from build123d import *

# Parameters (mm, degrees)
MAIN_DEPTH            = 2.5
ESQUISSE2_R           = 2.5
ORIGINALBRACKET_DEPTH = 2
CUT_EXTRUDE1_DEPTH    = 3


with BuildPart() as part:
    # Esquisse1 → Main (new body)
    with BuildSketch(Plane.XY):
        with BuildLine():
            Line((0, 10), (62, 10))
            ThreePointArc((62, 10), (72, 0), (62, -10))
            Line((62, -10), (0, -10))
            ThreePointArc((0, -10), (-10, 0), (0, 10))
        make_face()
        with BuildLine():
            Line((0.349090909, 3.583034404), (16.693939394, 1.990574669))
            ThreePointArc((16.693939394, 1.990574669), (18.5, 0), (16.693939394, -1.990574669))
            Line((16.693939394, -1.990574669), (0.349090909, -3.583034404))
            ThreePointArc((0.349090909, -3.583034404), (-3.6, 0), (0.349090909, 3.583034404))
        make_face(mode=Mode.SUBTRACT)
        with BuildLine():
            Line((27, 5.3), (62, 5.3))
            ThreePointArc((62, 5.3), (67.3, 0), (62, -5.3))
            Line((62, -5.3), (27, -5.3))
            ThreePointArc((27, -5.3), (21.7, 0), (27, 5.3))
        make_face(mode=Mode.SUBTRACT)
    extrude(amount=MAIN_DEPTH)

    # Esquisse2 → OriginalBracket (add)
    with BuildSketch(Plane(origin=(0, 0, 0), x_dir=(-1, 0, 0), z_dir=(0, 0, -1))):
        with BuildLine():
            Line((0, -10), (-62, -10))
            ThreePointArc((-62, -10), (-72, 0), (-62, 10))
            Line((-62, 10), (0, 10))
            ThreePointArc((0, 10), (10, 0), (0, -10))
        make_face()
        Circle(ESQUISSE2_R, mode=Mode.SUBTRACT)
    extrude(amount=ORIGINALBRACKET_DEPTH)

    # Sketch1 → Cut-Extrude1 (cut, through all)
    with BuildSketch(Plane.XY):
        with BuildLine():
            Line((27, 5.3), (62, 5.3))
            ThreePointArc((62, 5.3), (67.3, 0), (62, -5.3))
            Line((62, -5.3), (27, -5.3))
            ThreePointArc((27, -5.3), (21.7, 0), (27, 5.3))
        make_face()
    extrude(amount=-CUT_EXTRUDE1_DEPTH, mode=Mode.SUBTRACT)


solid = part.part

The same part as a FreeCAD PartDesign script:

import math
import FreeCAD as App
import Part
import Sketcher

doc = App.newDocument("Part")
params = doc.addObject("Spreadsheet::Sheet", "Params")
for row, (alias, value) in enumerate([
    ("sketch1_radius", "10 mm"),
    ("sketch1_radius2", "2 mm"),
    ("sketch1_radius3", "5.3 mm"),
    ("sketch1_radius4", "3.6 mm"),
    ("sketch1_width", "62 mm"),
    ("pad1_length", "2.5 mm"),
    ("sketch2_diameter", "5 mm"),
    ("sketch2_radius", "10 mm"),
    ("sketch2_width", "62 mm"),
    ("pad2_length", "2 mm"),
    ("sketch3_radius", "5.3 mm"),
    ("sketch3_width", "35 mm"),
], start=1):
    params.set(f"A{row}", alias)
    params.set(f"B{row}", "=" + value)
    params.setAlias(f"B{row}", alias)

body = doc.addObject("PartDesign::Body", "Body")

# Sketch on XY plane
sketch1 = doc.addObject("Sketcher::SketchObject", "Sketch")
body.addObject(sketch1)
sketch1.AttachmentSupport = (doc.XY_Plane, [""])
sketch1.MapMode = "FlatFace"
sketch1.addGeometry(Part.LineSegment(App.Vector(62, 10, 0), App.Vector(0, 10, 0)), False)
sketch1.addGeometry(Part.ArcOfCircle(Part.Circle(App.Vector(0, 0, 0), App.Vector(0, 0, 1), 10), math.radians(90), math.radians(270)), False)
sketch1.addGeometry(Part.LineSegment(App.Vector(0, -10, 0), App.Vector(62, -10, 0)), False)
sketch1.addGeometry(Part.ArcOfCircle(Part.Circle(App.Vector(62, 0, 0), App.Vector(0, 0, 1), 10), math.radians(-90), math.radians(90)), False)
sketch1.addGeometry(Part.LineSegment(App.Vector(27, 5.3, 0), App.Vector(62, 5.3, 0)), False)
sketch1.addGeometry(Part.ArcOfCircle(Part.Circle(App.Vector(62, 0, 0), App.Vector(0, 0, 1), 5.3), math.radians(-90), math.radians(90)), False)
sketch1.addGeometry(Part.LineSegment(App.Vector(62, -5.3, 0), App.Vector(27, -5.3, 0)), False)
sketch1.addGeometry(Part.ArcOfCircle(Part.Circle(App.Vector(27, 0, 0), App.Vector(0, 0, 1), 5.3), math.radians(90), math.radians(270)), False)
sketch1.addGeometry(Part.LineSegment(App.Vector(0.3, 3.6, 0), App.Vector(16.7, 2, 0)), False)
sketch1.addGeometry(Part.ArcOfCircle(Part.Circle(App.Vector(16.5, 0, 0), App.Vector(0, 0, 1), 2), math.radians(-84), math.radians(84)), False)
sketch1.addGeometry(Part.LineSegment(App.Vector(16.7, -2, 0), App.Vector(0.3, -3.6, 0)), False)
sketch1.addGeometry(Part.ArcOfCircle(Part.Circle(App.Vector(0, 0, 0), App.Vector(0, 0, 1), 3.6), math.radians(84), math.radians(276)), False)
sketch1.addConstraint(Sketcher.Constraint("Tangent", 0, 2, 1, 1))
sketch1.addConstraint(Sketcher.Constraint("Tangent", 1, 2, 2, 1))
sketch1.addConstraint(Sketcher.Constraint("Tangent", 2, 2, 3, 1))
sketch1.addConstraint(Sketcher.Constraint("Tangent", 3, 2, 0, 1))
sketch1.addConstraint(Sketcher.Constraint("Tangent", 4, 2, 5, 2))
sketch1.addConstraint(Sketcher.Constraint("Tangent", 5, 1, 6, 1))
sketch1.addConstraint(Sketcher.Constraint("Tangent", 6, 2, 7, 2))
sketch1.addConstraint(Sketcher.Constraint("Tangent", 7, 1, 4, 1))
sketch1.addConstraint(Sketcher.Constraint("Tangent", 8, 2, 9, 2))
sketch1.addConstraint(Sketcher.Constraint("Tangent", 9, 1, 10, 1))
sketch1.addConstraint(Sketcher.Constraint("Tangent", 10, 2, 11, 2))
sketch1.addConstraint(Sketcher.Constraint("Tangent", 11, 1, 8, 1))
sketch1.addConstraint(Sketcher.Constraint("Horizontal", 0))
sketch1.addConstraint(Sketcher.Constraint("Horizontal", 2))
sketch1.addConstraint(Sketcher.Constraint("Horizontal", 4))
sketch1.addConstraint(Sketcher.Constraint("Horizontal", 6))
sketch1.addConstraint(Sketcher.Constraint("Coincident", 1, 3, -1, 1))
sketch1.addConstraint(Sketcher.Constraint("Coincident", 11, 3, -1, 1))
sketch1.addConstraint(Sketcher.Constraint("Coincident", 5, 3, 3, 3))
sketch1.addConstraint(Sketcher.Constraint("PointOnObject", 9, 3, -1))
sketch1.addConstraint(Sketcher.Constraint("Radius", 1, 10.0))
sketch1.addConstraint(Sketcher.Constraint("Radius", 9, 2.0))
sketch1.addConstraint(Sketcher.Constraint("Radius", 5, 5.3))
sketch1.addConstraint(Sketcher.Constraint("Radius", 11, 3.6))
sketch1.addConstraint(Sketcher.Constraint("DistanceX", 0, 2, 0, 1, 62.0))
sketch1.addConstraint(Sketcher.Constraint("DistanceX", 4, 1, 4, 2, 35.0))
sketch1.addConstraint(Sketcher.Constraint("DistanceX", -1, 1, 9, 3, 16.5))
sketch1.setExpression("Constraints[20]", "Params.sketch1_radius")
sketch1.setExpression("Constraints[21]", "Params.sketch1_radius2")
sketch1.setExpression("Constraints[22]", "Params.sketch1_radius3")
sketch1.setExpression("Constraints[23]", "Params.sketch1_radius4")
sketch1.setExpression("Constraints[24]", "Params.sketch1_width")
pad1 = doc.addObject("PartDesign::Pad", "Pad")
body.addObject(pad1)
pad1.Profile = sketch1
pad1.setExpression("Length", "Params.pad1_length")

# Sketch on XY plane
sketch2 = doc.addObject("Sketcher::SketchObject", "Sketch001")
body.addObject(sketch2)
sketch2.AttachmentSupport = (doc.XY_Plane, [""])
sketch2.MapMode = "FlatFace"
sketch2.addGeometry(Part.LineSegment(App.Vector(62, -10, 0), App.Vector(0, -10, 0)), False)
sketch2.addGeometry(Part.ArcOfCircle(Part.Circle(App.Vector(0, 0, 0), App.Vector(0, 0, 1), 10), math.radians(90), math.radians(270)), False)
sketch2.addGeometry(Part.LineSegment(App.Vector(0, 10, 0), App.Vector(62, 10, 0)), False)
sketch2.addGeometry(Part.ArcOfCircle(Part.Circle(App.Vector(62, 0, 0), App.Vector(0, 0, 1), 10), math.radians(-90), math.radians(90)), False)
sketch2.addGeometry(Part.Circle(App.Vector(0, 0, 0), App.Vector(0, 0, 1), 2.5), False)
sketch2.addConstraint(Sketcher.Constraint("Tangent", 0, 2, 1, 2))
sketch2.addConstraint(Sketcher.Constraint("Tangent", 1, 1, 2, 1))
sketch2.addConstraint(Sketcher.Constraint("Tangent", 2, 2, 3, 2))
sketch2.addConstraint(Sketcher.Constraint("Tangent", 3, 1, 0, 1))
sketch2.addConstraint(Sketcher.Constraint("Horizontal", 0))
sketch2.addConstraint(Sketcher.Constraint("Horizontal", 2))
sketch2.addConstraint(Sketcher.Constraint("Coincident", 1, 3, -1, 1))
sketch2.addConstraint(Sketcher.Constraint("Coincident", 4, 3, -1, 1))
sketch2.addConstraint(Sketcher.Constraint("Diameter", 4, 5.0))
sketch2.addConstraint(Sketcher.Constraint("Radius", 1, 10.0))
sketch2.addConstraint(Sketcher.Constraint("DistanceX", 0, 2, 0, 1, 62.0))
sketch2.setExpression("Constraints[8]", "Params.sketch2_diameter")
sketch2.setExpression("Constraints[9]", "Params.sketch2_radius")
sketch2.setExpression("Constraints[10]", "Params.sketch2_width")
pad2 = doc.addObject("PartDesign::Pad", "Pad001")
body.addObject(pad2)
pad2.Profile = sketch2
pad2.setExpression("Length", "Params.pad2_length")
pad2.Reversed = True

# Sketch on XY plane
sketch3 = doc.addObject("Sketcher::SketchObject", "Sketch002")
body.addObject(sketch3)
sketch3.AttachmentSupport = (doc.XY_Plane, [""])
sketch3.MapMode = "FlatFace"
sketch3.addGeometry(Part.LineSegment(App.Vector(62, 5, 0), App.Vector(27, 5, 0)), False)
sketch3.addGeometry(Part.ArcOfCircle(Part.Circle(App.Vector(27, 0, 0), App.Vector(0, 0, 1), 5), math.radians(90), math.radians(270)), False)
sketch3.addGeometry(Part.LineSegment(App.Vector(27, -5, 0), App.Vector(62, -5, 0)), False)
sketch3.addGeometry(Part.ArcOfCircle(Part.Circle(App.Vector(62, 0, 0), App.Vector(0, 0, 1), 5), math.radians(-90), math.radians(90)), False)
sketch3.addConstraint(Sketcher.Constraint("Tangent", 0, 2, 1, 1))
sketch3.addConstraint(Sketcher.Constraint("Tangent", 1, 2, 2, 1))
sketch3.addConstraint(Sketcher.Constraint("Tangent", 2, 2, 3, 1))
sketch3.addConstraint(Sketcher.Constraint("Tangent", 3, 2, 0, 1))
sketch3.addConstraint(Sketcher.Constraint("Horizontal", 0))
sketch3.addConstraint(Sketcher.Constraint("Horizontal", 2))
sketch3.addConstraint(Sketcher.Constraint("PointOnObject", 1, 3, -1))
sketch3.addConstraint(Sketcher.Constraint("Radius", 1, 5.3))
sketch3.addConstraint(Sketcher.Constraint("DistanceX", 0, 2, 0, 1, 35.0))
sketch3.addConstraint(Sketcher.Constraint("DistanceX", -1, 1, 1, 3, 27.0))
sketch3.setExpression("Constraints[7]", "Params.sketch3_radius")
sketch3.setExpression("Constraints[8]", "Params.sketch3_width")
pocket1 = doc.addObject("PartDesign::Pocket", "Pocket")
body.addObject(pocket1)
pocket1.Profile = sketch3
pocket1.Type = "ThroughAll"

doc.recompute()
